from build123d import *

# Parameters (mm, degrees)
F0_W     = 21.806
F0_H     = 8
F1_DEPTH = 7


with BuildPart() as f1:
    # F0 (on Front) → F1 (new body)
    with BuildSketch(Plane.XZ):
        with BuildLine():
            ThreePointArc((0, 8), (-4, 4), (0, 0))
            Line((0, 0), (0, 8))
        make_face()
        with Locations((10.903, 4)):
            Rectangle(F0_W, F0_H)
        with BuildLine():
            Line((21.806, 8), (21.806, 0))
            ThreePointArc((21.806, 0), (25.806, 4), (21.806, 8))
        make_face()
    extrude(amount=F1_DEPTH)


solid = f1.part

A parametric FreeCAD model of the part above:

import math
import FreeCAD as App
import Part
import Sketcher

V = App.Vector
Q = App.Units.Quantity

doc = App.newDocument("Part")
body = doc.addObject("PartDesign::Body", "Body")

# Sketch on XZ plane
sketch1 = body.newObject("Sketcher::SketchObject", "Sketch")
sketch1.AttachmentSupport = (doc.getObject("XZ_Plane"), [""])
sketch1.MapMode = "FlatFace"
sketch1.addGeometry([
    Part.ArcOfCircle(Part.Circle(V(0, 4, 0), V(0, 0, 1), 4), math.radians(90), math.radians(270)),
    Part.LineSegment(V(0, 0, 0), V(21.8, 0, 0)),
    Part.ArcOfCircle(Part.Circle(V(21.8, 4, 0), V(0, 0, 1), 4), math.radians(-90), math.radians(90)),
    Part.LineSegment(V(21.8, 8, 0), V(0, 8, 0)),
], False)
sketch1.addConstraint([
    Sketcher.Constraint("Tangent", 0, 2, 1, 1),
    Sketcher.Constraint("Tangent", 1, 2, 2, 1),
    Sketcher.Constraint("Tangent", 2, 2, 3, 1),
    Sketcher.Constraint("Tangent", 3, 2, 0, 1),
    Sketcher.Constraint("Horizontal", 1),
    Sketcher.Constraint("Horizontal", 3),
    Sketcher.Constraint("Coincident", 0, 2, -1, 1),
    Sketcher.Constraint("Radius", 0, Q("4 mm")),
    Sketcher.Constraint("DistanceX", 1, 1, 1, 2, Q("21.806 mm")),
])
pad1 = body.newObject("PartDesign::Pad", "Pad")
pad1.Profile = sketch1
pad1.Length = 7

doc.recompute()
